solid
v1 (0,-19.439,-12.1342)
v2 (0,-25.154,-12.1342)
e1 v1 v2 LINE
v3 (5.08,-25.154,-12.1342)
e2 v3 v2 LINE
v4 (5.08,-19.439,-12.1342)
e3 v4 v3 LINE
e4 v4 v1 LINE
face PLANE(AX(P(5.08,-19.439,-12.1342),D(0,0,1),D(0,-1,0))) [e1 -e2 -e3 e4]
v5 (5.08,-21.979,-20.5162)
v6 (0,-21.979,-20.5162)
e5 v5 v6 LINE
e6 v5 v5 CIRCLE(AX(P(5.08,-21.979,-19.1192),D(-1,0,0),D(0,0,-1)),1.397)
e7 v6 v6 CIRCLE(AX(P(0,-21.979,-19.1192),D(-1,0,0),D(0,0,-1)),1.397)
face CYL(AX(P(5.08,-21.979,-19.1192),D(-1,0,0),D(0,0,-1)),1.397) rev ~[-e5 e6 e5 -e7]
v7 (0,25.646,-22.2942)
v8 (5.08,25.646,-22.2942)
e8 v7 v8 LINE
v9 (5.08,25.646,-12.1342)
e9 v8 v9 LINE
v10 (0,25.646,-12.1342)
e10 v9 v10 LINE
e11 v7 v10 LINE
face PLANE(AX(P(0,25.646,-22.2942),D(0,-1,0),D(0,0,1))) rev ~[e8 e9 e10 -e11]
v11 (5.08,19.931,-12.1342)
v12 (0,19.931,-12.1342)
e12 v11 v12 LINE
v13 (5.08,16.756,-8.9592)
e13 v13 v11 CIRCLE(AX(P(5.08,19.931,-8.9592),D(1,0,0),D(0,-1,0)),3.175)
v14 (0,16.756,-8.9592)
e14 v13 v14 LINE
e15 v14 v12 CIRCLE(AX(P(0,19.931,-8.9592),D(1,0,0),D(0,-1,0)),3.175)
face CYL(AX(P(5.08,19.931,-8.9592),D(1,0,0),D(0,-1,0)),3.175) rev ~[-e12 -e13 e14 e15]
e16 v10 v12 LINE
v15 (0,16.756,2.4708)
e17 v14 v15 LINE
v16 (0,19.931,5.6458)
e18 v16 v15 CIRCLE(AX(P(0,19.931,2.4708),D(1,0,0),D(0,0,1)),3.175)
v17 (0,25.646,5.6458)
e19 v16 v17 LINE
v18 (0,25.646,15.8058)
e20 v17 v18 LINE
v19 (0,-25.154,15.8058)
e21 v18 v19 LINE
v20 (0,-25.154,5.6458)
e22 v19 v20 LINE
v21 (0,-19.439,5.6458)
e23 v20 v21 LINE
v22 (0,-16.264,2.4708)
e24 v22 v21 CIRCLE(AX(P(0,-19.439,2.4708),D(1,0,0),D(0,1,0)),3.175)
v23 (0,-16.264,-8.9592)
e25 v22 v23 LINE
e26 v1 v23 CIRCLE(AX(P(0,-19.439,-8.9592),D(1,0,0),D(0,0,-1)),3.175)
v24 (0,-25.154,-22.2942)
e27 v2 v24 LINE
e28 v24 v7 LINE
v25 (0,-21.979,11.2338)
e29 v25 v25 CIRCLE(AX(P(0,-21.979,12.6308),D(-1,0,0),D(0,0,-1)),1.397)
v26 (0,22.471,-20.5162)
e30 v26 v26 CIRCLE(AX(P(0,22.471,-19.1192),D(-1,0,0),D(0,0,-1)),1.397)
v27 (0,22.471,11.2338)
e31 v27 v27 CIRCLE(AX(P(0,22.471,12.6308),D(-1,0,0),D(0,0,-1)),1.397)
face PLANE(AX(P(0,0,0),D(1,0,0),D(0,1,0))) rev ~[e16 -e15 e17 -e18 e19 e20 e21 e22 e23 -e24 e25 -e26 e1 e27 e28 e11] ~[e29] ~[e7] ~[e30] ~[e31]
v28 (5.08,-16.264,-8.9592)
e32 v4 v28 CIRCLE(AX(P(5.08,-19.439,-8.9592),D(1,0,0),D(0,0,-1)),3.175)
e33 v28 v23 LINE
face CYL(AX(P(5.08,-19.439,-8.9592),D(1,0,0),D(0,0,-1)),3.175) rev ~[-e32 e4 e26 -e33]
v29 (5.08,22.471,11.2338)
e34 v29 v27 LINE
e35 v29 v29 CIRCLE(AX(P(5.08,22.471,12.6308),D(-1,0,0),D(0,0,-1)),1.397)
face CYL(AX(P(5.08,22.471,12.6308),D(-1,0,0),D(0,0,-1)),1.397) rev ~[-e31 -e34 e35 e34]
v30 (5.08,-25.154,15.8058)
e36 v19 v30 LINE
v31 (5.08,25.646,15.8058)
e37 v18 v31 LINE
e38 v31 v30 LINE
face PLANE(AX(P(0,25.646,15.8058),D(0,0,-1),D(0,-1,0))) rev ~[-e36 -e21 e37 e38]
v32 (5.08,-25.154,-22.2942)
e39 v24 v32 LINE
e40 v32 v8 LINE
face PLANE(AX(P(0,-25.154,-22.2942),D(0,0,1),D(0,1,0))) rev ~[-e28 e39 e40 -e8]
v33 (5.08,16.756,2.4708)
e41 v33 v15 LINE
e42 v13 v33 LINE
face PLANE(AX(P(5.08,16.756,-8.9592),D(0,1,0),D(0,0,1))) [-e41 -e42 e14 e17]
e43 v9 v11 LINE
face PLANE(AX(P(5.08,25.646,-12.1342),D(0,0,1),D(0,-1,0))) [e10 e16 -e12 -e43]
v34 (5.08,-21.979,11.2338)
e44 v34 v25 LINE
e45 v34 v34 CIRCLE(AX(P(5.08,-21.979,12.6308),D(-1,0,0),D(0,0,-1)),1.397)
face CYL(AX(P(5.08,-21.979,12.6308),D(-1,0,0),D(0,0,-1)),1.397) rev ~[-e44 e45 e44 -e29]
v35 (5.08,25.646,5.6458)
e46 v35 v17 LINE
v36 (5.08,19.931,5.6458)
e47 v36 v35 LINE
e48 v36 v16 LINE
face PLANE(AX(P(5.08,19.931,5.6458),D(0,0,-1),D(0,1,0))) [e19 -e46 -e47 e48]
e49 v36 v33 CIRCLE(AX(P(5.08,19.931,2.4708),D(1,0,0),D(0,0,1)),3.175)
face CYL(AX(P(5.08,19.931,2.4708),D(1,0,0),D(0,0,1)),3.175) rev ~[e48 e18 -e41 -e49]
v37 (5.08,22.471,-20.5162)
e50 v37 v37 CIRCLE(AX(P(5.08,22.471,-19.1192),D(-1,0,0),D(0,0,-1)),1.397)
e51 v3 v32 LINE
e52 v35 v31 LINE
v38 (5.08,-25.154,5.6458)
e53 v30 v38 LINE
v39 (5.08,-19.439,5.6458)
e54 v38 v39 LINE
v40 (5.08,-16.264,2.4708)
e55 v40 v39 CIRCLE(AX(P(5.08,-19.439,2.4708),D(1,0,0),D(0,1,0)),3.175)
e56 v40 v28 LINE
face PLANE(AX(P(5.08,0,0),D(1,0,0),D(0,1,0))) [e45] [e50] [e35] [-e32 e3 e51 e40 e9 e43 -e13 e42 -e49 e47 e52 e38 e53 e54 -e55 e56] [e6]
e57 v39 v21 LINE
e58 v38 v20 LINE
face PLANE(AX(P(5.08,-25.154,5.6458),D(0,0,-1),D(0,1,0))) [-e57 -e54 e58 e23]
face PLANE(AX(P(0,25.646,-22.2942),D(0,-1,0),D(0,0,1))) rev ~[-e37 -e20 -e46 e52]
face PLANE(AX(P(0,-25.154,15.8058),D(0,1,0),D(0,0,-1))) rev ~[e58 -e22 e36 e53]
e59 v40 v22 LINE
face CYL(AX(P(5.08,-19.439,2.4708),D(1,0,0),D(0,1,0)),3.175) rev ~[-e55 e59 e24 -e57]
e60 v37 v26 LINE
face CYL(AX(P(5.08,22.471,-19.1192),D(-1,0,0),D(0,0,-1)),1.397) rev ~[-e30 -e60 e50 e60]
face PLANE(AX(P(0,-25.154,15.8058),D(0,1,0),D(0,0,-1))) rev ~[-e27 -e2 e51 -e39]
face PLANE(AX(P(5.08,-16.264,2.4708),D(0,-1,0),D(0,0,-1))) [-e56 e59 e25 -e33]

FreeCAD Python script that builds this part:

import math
import FreeCAD as App
import Part
import Sketcher
Q = App.Units.Quantity

doc = App.newDocument("Part")
body = doc.addObject("PartDesign::Body", "Body")

# Sketch on YZ plane
sketch1 = body.newObject("Sketcher::SketchObject", "Sketch")
sketch1.AttachmentSupport = (doc.getObject("YZ_Plane"), [""])
sketch1.MapMode = "FlatFace"
sketch1.addGeometry(Part.LineSegment(App.Vector(26, -22, 0), App.Vector(26, 16, 0)), False)
sketch1.addGeometry(Part.LineSegment(App.Vector(26, 16, 0), App.Vector(-25, 16, 0)), False)
sketch1.addGeometry(Part.LineSegment(App.Vector(-25, 16, 0), App.Vector(-25, -22, 0)), False)
sketch1.addGeometry(Part.LineSegment(App.Vector(-25, -22, 0), App.Vector(26, -22, 0)), False)
sketch1.addConstraint(Sketcher.Constraint("Coincident", 0, 2, 1, 1))
sketch1.addConstraint(Sketcher.Constraint("Coincident", 1, 2, 2, 1))
sketch1.addConstraint(Sketcher.Constraint("Coincident", 2, 2, 3, 1))
sketch1.addConstraint(Sketcher.Constraint("Coincident", 3, 2, 0, 1))
sketch1.addConstraint(Sketcher.Constraint("Vertical", 0))
sketch1.addConstraint(Sketcher.Constraint("Horizontal", 1))
sketch1.addConstraint(Sketcher.Constraint("Vertical", 2))
sketch1.addConstraint(Sketcher.Constraint("Horizontal", 3))
sketch1.addConstraint(Sketcher.Constraint("DistanceX", 1, 2, 1, 1, Q("2 in")))
sketch1.addConstraint(Sketcher.Constraint("DistanceY", 0, 1, 0, 2, Q("1.5 in")))
sketch1.addConstraint(Sketcher.Constraint("DistanceX", -1, 1, 0, 2, 25.646))
sketch1.addConstraint(Sketcher.Constraint("DistanceY", -1, 1, 0, 2, 15.8058))
pad1 = body.newObject("PartDesign::Pad", "Pad")
pad1.Profile = sketch1
pad1.Length = Q("0.2 in")

# Sketch on YZ plane
sketch2 = body.newObject("Sketcher::SketchObject", "Sketch001")
sketch2.AttachmentSupport = (doc.getObject("YZ_Plane"), [""])
sketch2.MapMode = "FlatFace"
sketch2.AttachmentOffset = App.Placement(App.Vector(0, 0, 0.2 * 25.4), App.Rotation())
sketch2.addGeometry(Part.Circle(App.Vector(22.5, 12.6, 0), App.Vector(0, 0, 1), 1.4), False)
sketch2.addGeometry(Part.Circle(App.Vector(22.5, -19.1, 0), App.Vector(0, 0, 1), 1.4), False)
sketch2.addGeometry(Part.Circle(App.Vector(-22, -19.1, 0), App.Vector(0, 0, 1), 1.4), False)
sketch2.addGeometry(Part.Circle(App.Vector(-22, 12.6, 0), App.Vector(0, 0, 1), 1.4), False)
sketch2.addConstraint(Sketcher.Constraint("Equal", 0, 1))
sketch2.addConstraint(Sketcher.Constraint("Equal", 1, 2))
sketch2.addConstraint(Sketcher.Constraint("Equal", 2, 3))
sketch2.addConstraint(Sketcher.Constraint("Horizontal", 1, 3, 2, 3))
sketch2.addConstraint(Sketcher.Constraint("Horizontal", 0, 3, 3, 3))
sketch2.addConstraint(Sketcher.Constraint("Vertical", 0, 3, 1, 3))
sketch2.addConstraint(Sketcher.Constraint("Vertical", 2, 3, 3, 3))
sketch2.addConstraint(Sketcher.Constraint("Diameter", 0, Q("0.11 in")))
sketch2.addConstraint(Sketcher.Constraint("DistanceY", 1, 3, 0, 3, Q("1.25 in")))
sketch2.addConstraint(Sketcher.Constraint("DistanceX", 2, 3, 1, 3, Q("1.75 in")))
sketch2.addConstraint(Sketcher.Constraint("DistanceX", -1, 1, 0, 3, 22.471))
sketch2.addConstraint(Sketcher.Constraint("DistanceY", -1, 1, 0, 3, 12.6308))
doc.recompute()
hole = body.newObject("PartDesign::Hole", "Hole")
hole.Profile = sketch2
hole.ThreadType = "None"
hole.Diameter = Q("0.11 in")
hole.DepthType = "ThroughAll"

# Sketch on YZ plane
sketch3 = body.newObject("Sketcher::SketchObject", "Sketch002")
sketch3.AttachmentSupport = (doc.getObject("YZ_Plane"), [""])
sketch3.MapMode = "FlatFace"
sketch3.AttachmentOffset = App.Placement(App.Vector(0, 0, 0.2 * 25.4), App.Rotation())
sketch3.addGeometry(Part.LineSegment(App.Vector(25.6, -12.1, 0), App.Vector(25.6, 5.6, 0)), False)
sketch3.addGeometry(Part.LineSegment(App.Vector(25.6, 5.6, 0), App.Vector(19.9, 5.6, 0)), False)
sketch3.addGeometry(Part.ArcOfCircle(Part.Circle(App.Vector(19.9, 2.5, 0), App.Vector(0, 0, 1), 3.2), math.radians(90), math.radians(180)), False)
sketch3.addGeometry(Part.LineSegment(App.Vector(16.8, 2.5, 0), App.Vector(16.8, -9, 0)), False)
sketch3.addGeometry(Part.ArcOfCircle(Part.Circle(App.Vector(19.9, -9, 0), App.Vector(0, 0, 1), 3.2), math.radians(180), math.radians(270)), False)
sketch3.addGeometry(Part.LineSegment(App.Vector(19.9, -12.1, 0), App.Vector(25.6, -12.1, 0)), False)
sketch3.addGeometry(Part.LineSegment(App.Vector(-19.4, 5.6, 0), App.Vector(-25.2, 5.6, 0)), False)
sketch3.addGeometry(Part.LineSegment(App.Vector(-25.2, 5.6, 0), App.Vector(-25.2, -12.1, 0)), False)
sketch3.addGeometry(Part.LineSegment(App.Vector(-25.2, -12.1, 0), App.Vector(-19.4, -12.1, 0)), False)
sketch3.addGeometry(Part.ArcOfCircle(Part.Circle(App.Vector(-19.4, -9, 0), App.Vector(0, 0, 1), 3.2), math.radians(-90), math.radians(0)), False)
sketch3.addGeometry(Part.LineSegment(App.Vector(-16.3, -9, 0), App.Vector(-16.3, 2.5, 0)), False)
sketch3.addGeometry(Part.ArcOfCircle(Part.Circle(App.Vector(-19.4, 2.5, 0), App.Vector(0, 0, 1), 3.2), math.radians(0), math.radians(90)), False)
sketch3.addConstraint(Sketcher.Constraint("Coincident", 0, 2, 1, 1))
sketch3.addConstraint(Sketcher.Constraint("Tangent", 1, 2, 2, 1))
sketch3.addConstraint(Sketcher.Constraint("Tangent", 2, 2, 3, 1))
sketch3.addConstraint(Sketcher.Constraint("Tangent", 3, 2, 4, 1))
sketch3.addConstraint(Sketcher.Constraint("Tangent", 4, 2, 5, 1))
sketch3.addConstraint(Sketcher.Constraint("Coincident", 5, 2, 0, 1))
sketch3.addConstraint(Sketcher.Constraint("Coincident", 6, 2, 7, 1))
sketch3.addConstraint(Sketcher.Constraint("Coincident", 7, 2, 8, 1))
sketch3.addConstraint(Sketcher.Constraint("Tangent", 8, 2, 9, 1))
sketch3.addConstraint(Sketcher.Constraint("Tangent", 9, 2, 10, 1))
sketch3.addConstraint(Sketcher.Constraint("Tangent", 10, 2, 11, 1))
sketch3.addConstraint(Sketcher.Constraint("Tangent", 11, 2, 6, 1))
sketch3.addConstraint(Sketcher.Constraint("Vertical", 0))
sketch3.addConstraint(Sketcher.Constraint("Horizontal", 1))
sketch3.addConstraint(Sketcher.Constraint("Vertical", 3))
sketch3.addConstraint(Sketcher.Constraint("Horizontal", 5))
sketch3.addConstraint(Sketcher.Constraint("Horizontal", 6))
sketch3.addConstraint(Sketcher.Constraint("Vertical", 7))
sketch3.addConstraint(Sketcher.Constraint("Horizontal", 8))
sketch3.addConstraint(Sketcher.Constraint("Vertical", 10))
sketch3.addConstraint(Sketcher.Constraint("Equal", 2, 4))
sketch3.addConstraint(Sketcher.Constraint("Equal", 4, 9))
sketch3.addConstraint(Sketcher.Constraint("Equal", 9, 11))
sketch3.addConstraint(Sketcher.Constraint("Horizontal", 4, 3, 9, 3))
sketch3.addConstraint(Sketcher.Constraint("Horizontal", 2, 3, 11, 3))
sketch3.addConstraint(Sketcher.Constraint("Equal", 5, 6))
sketch3.addConstraint(Sketcher.Constraint("Radius", 2, Q("0.125 in")))
sketch3.addConstraint(Sketcher.Constraint("DistanceX", 2, 2, 0, 2, Q("0.35 in")))
sketch3.addConstraint(Sketcher.Constraint("DistanceY", 0, 1, 0, 2, Q("0.7 in")))
sketch3.addConstraint(Sketcher.Constraint("DistanceX", 9, 3, 4, 3, Q("1.55 in")))
sketch3.addConstraint(Sketcher.Constraint("DistanceX", -1, 1, 2, 3, 19.931))
sketch3.addConstraint(Sketcher.Constraint("DistanceY", -1, 1, 2, 3, 2.4708))
pocket1 = body.newObject("PartDesign::Pocket", "Pocket")
pocket1.Profile = sketch3
pocket1.Length = Q("0.8125 in")

doc.recompute()
